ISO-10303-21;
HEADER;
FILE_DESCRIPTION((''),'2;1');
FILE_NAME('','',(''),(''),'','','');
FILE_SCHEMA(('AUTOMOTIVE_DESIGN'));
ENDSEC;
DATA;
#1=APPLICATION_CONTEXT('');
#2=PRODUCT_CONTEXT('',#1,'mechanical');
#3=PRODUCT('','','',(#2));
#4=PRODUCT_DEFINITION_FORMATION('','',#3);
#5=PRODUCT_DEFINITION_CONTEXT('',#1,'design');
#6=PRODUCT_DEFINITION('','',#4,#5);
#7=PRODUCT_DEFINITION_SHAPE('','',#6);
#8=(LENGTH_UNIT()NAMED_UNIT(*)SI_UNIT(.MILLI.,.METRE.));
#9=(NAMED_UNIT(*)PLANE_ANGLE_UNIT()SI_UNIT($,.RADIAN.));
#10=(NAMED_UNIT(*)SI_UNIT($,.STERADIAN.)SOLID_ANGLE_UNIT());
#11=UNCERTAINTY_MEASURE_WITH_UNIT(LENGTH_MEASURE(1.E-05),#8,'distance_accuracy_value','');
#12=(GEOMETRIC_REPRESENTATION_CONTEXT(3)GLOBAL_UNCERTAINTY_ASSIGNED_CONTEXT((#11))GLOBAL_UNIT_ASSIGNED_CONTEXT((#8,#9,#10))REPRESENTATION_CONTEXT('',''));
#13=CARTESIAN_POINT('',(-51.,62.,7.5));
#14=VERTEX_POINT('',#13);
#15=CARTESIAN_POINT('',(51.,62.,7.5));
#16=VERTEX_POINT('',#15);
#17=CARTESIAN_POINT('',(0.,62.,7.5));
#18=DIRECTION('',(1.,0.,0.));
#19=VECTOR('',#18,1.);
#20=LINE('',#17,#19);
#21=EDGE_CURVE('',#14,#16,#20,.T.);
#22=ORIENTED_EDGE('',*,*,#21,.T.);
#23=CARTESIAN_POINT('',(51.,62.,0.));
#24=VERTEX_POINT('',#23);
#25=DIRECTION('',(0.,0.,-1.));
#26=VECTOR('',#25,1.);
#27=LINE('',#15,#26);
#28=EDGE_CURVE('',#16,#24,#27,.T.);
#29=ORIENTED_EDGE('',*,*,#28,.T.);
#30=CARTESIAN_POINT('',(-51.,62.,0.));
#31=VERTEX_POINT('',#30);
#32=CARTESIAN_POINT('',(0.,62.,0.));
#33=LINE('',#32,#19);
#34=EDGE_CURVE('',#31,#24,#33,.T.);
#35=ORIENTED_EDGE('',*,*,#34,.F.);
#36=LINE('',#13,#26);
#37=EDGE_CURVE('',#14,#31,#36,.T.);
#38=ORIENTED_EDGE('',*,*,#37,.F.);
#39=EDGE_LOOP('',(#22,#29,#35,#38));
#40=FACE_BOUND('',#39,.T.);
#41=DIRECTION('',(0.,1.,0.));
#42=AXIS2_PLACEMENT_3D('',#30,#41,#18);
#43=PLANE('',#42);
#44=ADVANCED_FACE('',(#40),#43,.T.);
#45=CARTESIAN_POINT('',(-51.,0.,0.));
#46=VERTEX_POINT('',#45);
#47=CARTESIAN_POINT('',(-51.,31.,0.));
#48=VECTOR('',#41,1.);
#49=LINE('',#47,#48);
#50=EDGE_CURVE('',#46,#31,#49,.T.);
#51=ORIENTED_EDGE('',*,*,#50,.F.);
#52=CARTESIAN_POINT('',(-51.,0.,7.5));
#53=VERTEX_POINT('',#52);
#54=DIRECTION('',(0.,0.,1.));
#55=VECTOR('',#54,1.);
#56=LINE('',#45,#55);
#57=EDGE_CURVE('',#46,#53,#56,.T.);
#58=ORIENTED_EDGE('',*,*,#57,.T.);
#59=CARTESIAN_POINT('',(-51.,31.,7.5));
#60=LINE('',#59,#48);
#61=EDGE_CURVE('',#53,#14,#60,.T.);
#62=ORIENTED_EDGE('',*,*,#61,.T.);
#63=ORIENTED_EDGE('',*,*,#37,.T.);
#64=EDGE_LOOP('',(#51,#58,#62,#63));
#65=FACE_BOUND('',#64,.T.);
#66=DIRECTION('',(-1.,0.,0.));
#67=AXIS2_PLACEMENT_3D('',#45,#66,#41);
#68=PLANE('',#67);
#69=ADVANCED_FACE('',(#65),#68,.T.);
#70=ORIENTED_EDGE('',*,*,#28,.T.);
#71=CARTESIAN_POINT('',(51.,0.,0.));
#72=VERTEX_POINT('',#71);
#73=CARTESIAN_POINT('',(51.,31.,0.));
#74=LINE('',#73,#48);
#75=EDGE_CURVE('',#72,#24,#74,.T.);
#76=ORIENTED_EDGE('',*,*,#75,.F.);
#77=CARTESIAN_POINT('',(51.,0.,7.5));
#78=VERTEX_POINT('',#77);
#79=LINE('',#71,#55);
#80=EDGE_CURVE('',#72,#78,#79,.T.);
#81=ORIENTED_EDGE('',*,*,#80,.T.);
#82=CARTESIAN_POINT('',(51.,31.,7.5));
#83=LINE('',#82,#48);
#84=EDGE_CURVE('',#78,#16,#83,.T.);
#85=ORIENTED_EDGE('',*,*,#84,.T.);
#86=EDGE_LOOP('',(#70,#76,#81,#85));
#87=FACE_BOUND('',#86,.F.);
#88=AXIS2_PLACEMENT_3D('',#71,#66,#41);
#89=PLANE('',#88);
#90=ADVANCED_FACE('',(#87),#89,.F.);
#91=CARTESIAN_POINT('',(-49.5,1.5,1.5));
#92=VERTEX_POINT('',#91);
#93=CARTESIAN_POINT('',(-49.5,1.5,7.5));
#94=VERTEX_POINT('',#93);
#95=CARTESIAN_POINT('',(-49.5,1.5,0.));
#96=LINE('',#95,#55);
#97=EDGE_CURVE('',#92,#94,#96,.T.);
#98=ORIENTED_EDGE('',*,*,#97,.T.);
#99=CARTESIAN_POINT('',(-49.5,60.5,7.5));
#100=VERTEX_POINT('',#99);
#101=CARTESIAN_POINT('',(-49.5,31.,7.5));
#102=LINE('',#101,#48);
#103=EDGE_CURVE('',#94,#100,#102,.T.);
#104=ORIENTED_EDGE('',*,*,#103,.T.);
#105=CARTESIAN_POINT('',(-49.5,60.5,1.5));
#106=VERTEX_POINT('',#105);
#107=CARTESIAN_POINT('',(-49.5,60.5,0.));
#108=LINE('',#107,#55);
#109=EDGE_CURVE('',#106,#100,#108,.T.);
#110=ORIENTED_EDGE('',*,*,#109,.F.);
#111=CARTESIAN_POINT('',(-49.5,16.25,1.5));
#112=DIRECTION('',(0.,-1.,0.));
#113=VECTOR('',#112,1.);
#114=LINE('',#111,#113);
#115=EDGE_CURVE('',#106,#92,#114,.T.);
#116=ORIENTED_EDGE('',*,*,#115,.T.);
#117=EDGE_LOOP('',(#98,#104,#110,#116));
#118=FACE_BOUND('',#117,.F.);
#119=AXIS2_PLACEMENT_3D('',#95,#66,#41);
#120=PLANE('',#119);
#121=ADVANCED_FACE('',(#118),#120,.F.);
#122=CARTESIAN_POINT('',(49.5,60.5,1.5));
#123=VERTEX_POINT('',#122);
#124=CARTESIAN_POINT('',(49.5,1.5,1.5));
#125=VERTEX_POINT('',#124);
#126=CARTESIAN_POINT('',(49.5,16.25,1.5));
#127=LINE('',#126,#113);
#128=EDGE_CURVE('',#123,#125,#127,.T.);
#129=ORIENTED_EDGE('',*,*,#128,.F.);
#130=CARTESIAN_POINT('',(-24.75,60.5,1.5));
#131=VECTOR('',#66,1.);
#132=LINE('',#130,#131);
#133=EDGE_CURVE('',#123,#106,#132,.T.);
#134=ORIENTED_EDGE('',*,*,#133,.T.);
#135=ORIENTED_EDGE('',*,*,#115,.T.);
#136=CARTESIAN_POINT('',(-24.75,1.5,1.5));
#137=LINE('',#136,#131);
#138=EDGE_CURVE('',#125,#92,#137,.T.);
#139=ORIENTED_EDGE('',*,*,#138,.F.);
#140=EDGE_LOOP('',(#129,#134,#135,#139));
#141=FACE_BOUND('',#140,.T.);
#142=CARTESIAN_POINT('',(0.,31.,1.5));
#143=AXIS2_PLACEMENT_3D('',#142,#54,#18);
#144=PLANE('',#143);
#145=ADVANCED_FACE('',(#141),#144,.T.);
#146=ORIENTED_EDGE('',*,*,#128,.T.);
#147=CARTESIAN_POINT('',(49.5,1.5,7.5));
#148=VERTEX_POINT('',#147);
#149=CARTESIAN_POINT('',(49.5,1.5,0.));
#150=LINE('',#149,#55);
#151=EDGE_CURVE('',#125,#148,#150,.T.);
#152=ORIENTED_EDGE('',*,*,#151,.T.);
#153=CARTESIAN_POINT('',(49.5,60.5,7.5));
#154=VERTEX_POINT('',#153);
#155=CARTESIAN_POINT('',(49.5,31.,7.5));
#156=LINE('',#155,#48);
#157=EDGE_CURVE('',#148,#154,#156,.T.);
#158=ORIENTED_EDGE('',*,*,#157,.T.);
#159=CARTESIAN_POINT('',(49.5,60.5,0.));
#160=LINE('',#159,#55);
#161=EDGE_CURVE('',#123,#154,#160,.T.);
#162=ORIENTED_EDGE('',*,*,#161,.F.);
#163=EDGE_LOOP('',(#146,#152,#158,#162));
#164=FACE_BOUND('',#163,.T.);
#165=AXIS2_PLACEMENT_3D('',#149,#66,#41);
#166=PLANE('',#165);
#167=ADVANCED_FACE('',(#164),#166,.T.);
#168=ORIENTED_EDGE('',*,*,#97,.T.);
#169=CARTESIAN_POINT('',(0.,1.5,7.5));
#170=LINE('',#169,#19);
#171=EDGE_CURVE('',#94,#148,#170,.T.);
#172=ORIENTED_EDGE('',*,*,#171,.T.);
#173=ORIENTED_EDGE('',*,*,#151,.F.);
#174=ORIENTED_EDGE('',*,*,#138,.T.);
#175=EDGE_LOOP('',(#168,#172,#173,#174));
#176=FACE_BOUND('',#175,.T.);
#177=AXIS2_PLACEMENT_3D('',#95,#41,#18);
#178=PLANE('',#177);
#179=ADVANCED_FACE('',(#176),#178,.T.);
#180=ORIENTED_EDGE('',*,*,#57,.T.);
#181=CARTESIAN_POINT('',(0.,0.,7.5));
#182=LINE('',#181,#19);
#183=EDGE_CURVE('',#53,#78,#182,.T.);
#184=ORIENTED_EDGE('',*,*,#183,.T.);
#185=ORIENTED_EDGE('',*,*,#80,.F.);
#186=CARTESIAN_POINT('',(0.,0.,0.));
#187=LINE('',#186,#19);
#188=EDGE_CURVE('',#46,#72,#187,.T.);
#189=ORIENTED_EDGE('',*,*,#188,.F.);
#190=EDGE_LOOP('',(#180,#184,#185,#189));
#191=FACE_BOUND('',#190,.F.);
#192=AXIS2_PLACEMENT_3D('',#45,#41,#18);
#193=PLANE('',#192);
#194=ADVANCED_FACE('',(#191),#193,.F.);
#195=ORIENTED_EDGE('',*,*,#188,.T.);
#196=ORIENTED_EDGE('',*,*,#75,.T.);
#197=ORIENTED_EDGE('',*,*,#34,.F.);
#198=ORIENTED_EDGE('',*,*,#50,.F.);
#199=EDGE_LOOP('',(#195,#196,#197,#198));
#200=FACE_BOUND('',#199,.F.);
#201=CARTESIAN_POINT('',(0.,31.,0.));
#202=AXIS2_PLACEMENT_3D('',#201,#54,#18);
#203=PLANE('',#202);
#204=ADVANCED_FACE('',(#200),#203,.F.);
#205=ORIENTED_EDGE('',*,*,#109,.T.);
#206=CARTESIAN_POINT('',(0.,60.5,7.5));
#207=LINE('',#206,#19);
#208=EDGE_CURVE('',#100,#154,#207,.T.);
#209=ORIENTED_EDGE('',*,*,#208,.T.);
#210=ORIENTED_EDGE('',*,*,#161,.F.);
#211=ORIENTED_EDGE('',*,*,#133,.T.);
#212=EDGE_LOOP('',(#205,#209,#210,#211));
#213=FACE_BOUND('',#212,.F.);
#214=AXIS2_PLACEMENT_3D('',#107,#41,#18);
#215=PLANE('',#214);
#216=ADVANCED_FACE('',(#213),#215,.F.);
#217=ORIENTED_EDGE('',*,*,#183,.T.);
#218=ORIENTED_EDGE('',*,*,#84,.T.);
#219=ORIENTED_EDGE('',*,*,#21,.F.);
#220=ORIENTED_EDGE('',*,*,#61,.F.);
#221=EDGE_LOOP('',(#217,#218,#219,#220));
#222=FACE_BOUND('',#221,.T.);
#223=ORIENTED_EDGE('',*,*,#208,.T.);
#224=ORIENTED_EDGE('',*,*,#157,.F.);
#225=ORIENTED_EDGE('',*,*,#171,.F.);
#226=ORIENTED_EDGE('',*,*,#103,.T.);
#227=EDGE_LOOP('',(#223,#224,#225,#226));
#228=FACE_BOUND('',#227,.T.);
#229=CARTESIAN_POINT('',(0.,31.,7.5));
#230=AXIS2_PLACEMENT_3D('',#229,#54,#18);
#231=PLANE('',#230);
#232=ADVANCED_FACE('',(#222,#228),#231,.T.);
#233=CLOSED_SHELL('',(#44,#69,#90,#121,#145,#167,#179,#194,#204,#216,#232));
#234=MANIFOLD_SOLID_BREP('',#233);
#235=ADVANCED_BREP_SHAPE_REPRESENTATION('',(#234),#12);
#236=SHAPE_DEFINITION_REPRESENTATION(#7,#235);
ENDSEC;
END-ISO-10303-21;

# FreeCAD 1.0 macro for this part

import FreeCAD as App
import Part
import Sketcher

V = App.Vector


def add_polygon(sketch, points):
    """Adds a closed chain of lines whose ends are joined by coincident constraints."""
    first, n = sketch.GeometryCount, len(points)
    for a, b in zip(points, points[1:] + points[:1]):
        sketch.addGeometry(Part.LineSegment(App.Vector(*a, 0), App.Vector(*b, 0)), False)
    for i in range(n):
        sketch.addConstraint(Sketcher.Constraint("Coincident", first + i, 2, first + (i + 1) % n, 1))

doc = App.newDocument("Part")
body = doc.addObject("PartDesign::Body", "Body")

# Sketch on XY plane
sketch1 = body.newObject("Sketcher::SketchObject", "Sketch")
sketch1.AttachmentSupport = (doc.getObject("XY_Plane"), [""])
sketch1.MapMode = "FlatFace"
add_polygon(sketch1, [(-51, 62), (-51, 0), (51, 0), (51, 62)])  # lines 0-3
sketch1.addConstraint(Sketcher.Constraint("Vertical", 0))
sketch1.addConstraint(Sketcher.Constraint("Horizontal", 1))
sketch1.addConstraint(Sketcher.Constraint("Vertical", 2))
sketch1.addConstraint(Sketcher.Constraint("Horizontal", 3))
sketch1.addConstraint(Sketcher.Constraint("Symmetric", 0, 2, 1, 2, -1, 1))
sketch1.addConstraint(Sketcher.Constraint("DistanceX", 1, 1, 1, 2, 102.0))
sketch1.addConstraint(Sketcher.Constraint("DistanceY", 0, 2, 0, 1, 62.0))
pad1 = body.newObject("PartDesign::Pad", "Pad")
pad1.Profile = sketch1
pad1.Length = 1.5

# Sketch on XY plane
sketch2 = body.newObject("Sketcher::SketchObject", "Sketch001")
sketch2.AttachmentSupport = (doc.getObject("XY_Plane"), [""])
sketch2.MapMode = "FlatFace"
add_polygon(sketch2, [(-51, 62), (-51, 0), (51, 0), (51, 62)])  # lines 0-3
add_polygon(sketch2, [(49.5, 1.5), (-49.5, 1.5), (-49.5, 60.5), (49.5, 60.5)])  # lines 4-7
sketch2.addConstraint(Sketcher.Constraint("Vertical", 0))
sketch2.addConstraint(Sketcher.Constraint("Horizontal", 1))
sketch2.addConstraint(Sketcher.Constraint("Vertical", 2))
sketch2.addConstraint(Sketcher.Constraint("Horizontal", 3))
sketch2.addConstraint(Sketcher.Constraint("Horizontal", 4))
sketch2.addConstraint(Sketcher.Constraint("Vertical", 5))
sketch2.addConstraint(Sketcher.Constraint("Horizontal", 6))
sketch2.addConstraint(Sketcher.Constraint("Vertical", 7))
sketch2.addConstraint(Sketcher.Constraint("Symmetric", 0, 2, 1, 2, -1, 1))
sketch2.addConstraint(Sketcher.Constraint("DistanceX", 1, 1, 1, 2, 102.0))
sketch2.addConstraint(Sketcher.Constraint("DistanceX", 4, 2, 4, 1, 99.0))
sketch2.addConstraint(Sketcher.Constraint("DistanceY", 0, 2, 0, 1, 62.0))
sketch2.addConstraint(Sketcher.Constraint("DistanceY", 5, 1, 5, 2, 59.0))
sketch2.addConstraint(Sketcher.Constraint("DistanceX", 4, 2, -1, 1, 49.5))
sketch2.addConstraint(Sketcher.Constraint("DistanceY", -1, 1, 4, 2, 1.5))
pad2 = body.newObject("PartDesign::Pad", "Pad001")
pad2.Profile = sketch2
pad2.Length = 7.5

doc.recompute()
